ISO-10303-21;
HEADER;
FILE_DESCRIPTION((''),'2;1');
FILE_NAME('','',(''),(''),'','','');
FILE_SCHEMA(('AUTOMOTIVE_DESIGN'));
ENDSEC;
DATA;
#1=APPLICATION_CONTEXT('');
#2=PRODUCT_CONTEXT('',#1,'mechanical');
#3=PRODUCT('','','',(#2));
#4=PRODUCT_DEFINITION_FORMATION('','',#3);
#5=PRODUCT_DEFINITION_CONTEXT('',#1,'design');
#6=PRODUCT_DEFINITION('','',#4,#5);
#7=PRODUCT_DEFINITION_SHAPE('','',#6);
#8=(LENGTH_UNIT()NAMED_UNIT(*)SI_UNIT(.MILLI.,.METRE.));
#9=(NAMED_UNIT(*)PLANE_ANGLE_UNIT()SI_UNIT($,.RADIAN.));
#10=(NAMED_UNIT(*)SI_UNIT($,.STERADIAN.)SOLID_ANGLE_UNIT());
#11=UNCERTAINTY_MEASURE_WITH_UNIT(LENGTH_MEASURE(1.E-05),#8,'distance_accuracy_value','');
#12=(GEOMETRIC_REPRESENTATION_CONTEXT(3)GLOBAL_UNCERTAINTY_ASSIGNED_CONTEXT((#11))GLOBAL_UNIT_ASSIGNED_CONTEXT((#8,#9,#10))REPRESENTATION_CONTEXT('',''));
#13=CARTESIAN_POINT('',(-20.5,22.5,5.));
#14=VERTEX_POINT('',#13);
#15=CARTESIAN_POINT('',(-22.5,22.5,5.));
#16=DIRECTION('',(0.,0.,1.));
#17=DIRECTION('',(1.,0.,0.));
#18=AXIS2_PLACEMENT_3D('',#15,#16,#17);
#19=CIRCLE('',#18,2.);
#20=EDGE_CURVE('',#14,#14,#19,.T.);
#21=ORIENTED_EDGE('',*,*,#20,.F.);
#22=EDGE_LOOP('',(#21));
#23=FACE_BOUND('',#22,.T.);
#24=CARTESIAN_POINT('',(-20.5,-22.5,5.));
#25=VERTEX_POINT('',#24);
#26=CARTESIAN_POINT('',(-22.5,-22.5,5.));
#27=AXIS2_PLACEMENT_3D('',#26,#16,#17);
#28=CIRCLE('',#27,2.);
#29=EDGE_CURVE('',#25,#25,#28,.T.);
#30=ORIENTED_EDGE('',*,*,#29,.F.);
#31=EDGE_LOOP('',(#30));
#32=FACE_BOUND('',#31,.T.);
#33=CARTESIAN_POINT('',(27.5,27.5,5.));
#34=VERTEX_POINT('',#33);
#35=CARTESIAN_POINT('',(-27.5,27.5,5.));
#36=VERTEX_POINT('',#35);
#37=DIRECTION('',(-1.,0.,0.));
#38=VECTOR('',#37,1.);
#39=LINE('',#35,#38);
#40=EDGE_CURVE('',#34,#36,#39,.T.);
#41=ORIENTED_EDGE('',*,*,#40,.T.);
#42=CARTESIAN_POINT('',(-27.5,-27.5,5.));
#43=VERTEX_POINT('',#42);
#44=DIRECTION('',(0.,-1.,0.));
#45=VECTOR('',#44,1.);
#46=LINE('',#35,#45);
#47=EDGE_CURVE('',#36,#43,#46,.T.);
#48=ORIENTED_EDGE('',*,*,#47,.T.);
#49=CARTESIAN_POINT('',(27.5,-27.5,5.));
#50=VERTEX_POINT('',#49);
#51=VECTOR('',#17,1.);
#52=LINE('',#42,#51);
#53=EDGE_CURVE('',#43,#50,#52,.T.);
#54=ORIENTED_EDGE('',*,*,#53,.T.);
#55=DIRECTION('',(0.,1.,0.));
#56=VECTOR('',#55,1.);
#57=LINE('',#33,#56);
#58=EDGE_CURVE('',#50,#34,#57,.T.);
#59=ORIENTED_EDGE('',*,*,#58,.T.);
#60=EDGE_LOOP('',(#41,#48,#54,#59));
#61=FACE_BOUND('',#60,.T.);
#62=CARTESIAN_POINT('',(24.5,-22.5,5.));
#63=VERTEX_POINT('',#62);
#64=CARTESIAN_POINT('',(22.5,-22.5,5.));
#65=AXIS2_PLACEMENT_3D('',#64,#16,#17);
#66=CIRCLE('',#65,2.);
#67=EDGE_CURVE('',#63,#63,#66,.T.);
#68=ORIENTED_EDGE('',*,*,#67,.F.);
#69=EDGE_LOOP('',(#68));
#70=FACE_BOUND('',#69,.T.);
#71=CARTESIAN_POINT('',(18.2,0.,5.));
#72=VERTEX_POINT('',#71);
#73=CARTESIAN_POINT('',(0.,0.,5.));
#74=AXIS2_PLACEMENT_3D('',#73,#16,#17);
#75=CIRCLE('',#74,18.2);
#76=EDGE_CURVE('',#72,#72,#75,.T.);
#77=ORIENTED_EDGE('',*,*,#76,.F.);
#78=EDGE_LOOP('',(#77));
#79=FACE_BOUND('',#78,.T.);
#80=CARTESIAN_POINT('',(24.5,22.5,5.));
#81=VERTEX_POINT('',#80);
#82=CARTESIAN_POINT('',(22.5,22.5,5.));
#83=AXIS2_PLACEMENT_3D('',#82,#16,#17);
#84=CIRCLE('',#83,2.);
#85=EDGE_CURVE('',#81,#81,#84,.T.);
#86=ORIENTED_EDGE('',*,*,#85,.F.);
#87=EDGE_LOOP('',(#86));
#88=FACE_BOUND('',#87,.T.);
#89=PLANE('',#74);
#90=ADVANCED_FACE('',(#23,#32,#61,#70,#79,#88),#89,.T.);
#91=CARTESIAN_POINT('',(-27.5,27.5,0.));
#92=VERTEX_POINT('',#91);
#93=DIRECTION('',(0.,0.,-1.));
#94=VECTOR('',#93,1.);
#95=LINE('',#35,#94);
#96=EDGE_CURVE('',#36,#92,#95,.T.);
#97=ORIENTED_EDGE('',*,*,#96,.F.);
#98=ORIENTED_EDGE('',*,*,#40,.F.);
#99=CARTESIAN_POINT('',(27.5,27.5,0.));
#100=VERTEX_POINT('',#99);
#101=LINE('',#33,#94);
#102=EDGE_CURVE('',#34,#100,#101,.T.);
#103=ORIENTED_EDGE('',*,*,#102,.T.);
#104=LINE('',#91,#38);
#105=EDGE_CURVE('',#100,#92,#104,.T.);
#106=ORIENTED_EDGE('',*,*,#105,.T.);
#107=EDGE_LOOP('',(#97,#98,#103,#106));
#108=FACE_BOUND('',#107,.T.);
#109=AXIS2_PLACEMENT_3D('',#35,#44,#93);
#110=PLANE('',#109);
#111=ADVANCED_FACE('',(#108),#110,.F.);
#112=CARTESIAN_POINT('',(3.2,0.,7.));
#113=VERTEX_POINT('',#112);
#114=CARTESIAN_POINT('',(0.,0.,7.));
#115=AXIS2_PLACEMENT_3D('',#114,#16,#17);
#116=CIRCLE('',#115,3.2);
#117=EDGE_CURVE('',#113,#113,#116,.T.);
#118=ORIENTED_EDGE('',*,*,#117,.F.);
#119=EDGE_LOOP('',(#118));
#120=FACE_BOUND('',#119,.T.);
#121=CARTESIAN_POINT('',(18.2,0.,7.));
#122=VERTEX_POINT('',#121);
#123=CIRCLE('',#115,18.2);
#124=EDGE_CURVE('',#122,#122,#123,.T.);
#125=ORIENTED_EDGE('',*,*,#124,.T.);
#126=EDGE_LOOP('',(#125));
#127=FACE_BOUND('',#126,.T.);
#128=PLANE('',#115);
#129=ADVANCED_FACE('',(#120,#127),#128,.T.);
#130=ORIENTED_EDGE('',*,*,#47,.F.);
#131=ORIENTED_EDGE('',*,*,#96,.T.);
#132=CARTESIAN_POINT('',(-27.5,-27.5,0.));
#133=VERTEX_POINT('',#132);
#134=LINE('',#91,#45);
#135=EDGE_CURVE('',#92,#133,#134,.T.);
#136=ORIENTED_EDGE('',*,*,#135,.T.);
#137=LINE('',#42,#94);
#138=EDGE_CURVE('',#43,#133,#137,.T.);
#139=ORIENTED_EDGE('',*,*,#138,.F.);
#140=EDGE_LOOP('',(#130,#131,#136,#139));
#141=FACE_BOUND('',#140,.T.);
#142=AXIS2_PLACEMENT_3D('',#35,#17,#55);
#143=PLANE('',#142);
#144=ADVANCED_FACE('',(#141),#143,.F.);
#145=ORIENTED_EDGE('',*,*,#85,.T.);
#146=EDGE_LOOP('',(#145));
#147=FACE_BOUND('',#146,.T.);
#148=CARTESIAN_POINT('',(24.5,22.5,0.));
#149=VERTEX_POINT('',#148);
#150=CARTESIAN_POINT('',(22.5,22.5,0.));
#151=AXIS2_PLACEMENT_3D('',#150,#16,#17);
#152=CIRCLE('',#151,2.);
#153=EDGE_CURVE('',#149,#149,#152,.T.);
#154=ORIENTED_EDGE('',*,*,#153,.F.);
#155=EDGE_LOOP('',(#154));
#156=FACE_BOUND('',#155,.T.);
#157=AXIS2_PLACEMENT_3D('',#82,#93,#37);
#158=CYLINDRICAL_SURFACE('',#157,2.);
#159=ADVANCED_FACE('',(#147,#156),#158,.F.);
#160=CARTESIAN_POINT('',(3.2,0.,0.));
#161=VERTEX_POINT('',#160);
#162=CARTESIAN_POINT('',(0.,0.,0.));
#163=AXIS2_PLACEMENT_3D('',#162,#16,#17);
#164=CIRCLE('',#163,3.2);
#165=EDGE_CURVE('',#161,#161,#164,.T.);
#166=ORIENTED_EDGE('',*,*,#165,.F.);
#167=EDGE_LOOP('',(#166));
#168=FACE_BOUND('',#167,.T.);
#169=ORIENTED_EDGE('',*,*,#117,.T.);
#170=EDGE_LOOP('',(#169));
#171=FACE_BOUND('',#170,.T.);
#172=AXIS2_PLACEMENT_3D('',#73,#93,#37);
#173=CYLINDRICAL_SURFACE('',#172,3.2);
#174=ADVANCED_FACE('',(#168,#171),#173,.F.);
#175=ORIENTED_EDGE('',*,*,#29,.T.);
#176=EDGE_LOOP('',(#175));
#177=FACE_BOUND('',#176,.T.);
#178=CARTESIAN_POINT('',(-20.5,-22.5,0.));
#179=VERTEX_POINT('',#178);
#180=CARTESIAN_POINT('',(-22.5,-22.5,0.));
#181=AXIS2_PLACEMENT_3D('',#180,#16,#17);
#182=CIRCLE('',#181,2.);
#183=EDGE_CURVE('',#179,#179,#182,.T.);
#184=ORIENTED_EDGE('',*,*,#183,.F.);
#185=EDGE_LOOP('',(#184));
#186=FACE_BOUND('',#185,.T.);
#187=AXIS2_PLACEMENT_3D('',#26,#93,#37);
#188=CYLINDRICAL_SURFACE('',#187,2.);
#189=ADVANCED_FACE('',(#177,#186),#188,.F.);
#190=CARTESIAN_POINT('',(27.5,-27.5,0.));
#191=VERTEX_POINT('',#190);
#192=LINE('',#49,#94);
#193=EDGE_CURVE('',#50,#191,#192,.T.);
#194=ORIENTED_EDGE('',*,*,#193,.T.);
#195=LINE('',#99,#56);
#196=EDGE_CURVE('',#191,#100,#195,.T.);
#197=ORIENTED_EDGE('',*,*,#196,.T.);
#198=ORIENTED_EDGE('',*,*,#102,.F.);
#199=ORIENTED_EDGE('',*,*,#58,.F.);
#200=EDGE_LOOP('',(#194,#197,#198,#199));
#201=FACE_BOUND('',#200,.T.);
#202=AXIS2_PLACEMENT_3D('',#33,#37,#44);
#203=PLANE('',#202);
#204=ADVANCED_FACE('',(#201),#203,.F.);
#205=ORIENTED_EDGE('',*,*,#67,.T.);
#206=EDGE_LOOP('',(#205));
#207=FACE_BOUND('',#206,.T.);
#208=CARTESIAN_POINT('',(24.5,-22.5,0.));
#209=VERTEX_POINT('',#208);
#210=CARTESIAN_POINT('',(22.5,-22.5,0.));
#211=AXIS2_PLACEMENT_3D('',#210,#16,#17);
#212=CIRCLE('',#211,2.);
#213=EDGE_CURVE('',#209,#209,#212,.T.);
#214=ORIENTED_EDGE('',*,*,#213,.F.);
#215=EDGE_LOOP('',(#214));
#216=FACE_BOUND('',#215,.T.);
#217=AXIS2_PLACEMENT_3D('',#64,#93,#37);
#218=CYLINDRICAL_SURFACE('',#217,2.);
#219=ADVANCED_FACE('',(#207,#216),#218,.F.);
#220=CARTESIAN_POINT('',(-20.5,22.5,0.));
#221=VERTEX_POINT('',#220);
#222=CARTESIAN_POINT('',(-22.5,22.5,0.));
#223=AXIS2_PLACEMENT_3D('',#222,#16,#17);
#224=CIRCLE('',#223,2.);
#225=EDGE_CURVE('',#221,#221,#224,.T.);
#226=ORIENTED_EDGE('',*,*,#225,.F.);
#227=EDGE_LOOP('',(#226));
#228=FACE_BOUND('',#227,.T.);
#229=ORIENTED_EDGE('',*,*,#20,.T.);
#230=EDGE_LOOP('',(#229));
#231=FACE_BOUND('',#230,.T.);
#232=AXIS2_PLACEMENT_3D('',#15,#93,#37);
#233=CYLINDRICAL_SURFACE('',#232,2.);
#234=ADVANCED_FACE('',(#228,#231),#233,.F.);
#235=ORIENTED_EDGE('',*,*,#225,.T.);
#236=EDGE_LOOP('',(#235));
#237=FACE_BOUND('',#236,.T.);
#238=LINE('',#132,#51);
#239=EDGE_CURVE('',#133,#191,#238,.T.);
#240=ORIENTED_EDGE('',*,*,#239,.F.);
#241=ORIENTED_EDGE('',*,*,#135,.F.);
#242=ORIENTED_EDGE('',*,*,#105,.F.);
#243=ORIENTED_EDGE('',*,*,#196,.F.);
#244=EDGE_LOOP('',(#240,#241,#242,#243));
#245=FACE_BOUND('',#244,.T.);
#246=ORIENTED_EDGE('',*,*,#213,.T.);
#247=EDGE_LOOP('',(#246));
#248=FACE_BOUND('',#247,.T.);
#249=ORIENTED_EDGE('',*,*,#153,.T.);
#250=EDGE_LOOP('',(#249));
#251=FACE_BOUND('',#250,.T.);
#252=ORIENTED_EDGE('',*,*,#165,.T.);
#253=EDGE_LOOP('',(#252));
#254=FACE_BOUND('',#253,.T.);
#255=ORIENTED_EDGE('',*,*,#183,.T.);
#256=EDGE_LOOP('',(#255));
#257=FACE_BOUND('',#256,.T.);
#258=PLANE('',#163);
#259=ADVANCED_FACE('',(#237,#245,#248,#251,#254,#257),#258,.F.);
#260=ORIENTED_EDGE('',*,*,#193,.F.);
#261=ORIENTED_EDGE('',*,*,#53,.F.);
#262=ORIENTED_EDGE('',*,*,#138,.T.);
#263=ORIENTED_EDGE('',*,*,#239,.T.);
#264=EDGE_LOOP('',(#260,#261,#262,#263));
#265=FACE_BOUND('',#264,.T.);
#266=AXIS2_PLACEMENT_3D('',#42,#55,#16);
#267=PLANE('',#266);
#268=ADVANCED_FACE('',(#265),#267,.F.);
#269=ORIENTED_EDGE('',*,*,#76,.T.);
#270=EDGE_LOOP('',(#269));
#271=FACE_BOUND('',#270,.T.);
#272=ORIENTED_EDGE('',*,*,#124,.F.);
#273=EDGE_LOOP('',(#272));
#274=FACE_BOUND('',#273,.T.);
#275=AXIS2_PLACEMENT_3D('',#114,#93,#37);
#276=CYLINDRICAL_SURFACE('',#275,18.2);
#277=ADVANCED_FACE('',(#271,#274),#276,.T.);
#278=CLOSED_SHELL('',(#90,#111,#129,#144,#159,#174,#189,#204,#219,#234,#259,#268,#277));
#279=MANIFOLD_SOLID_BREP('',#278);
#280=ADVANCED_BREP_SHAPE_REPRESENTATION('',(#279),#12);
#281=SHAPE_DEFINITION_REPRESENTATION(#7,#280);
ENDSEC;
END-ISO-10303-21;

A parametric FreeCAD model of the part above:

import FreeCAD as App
import Part
import Sketcher

V = App.Vector


def add_polygon(sketch, points):
    """Adds a closed chain of lines whose ends are joined by coincident constraints."""
    first, n = sketch.GeometryCount, len(points)
    for a, b in zip(points, points[1:] + points[:1]):
        sketch.addGeometry(Part.LineSegment(App.Vector(*a, 0), App.Vector(*b, 0)), False)
    for i in range(n):
        sketch.addConstraint(Sketcher.Constraint("Coincident", first + i, 2, first + (i + 1) % n, 1))

doc = App.newDocument("Part")
body = doc.addObject("PartDesign::Body", "Body")

# Sketch on XY plane
sketch1 = body.newObject("Sketcher::SketchObject", "Sketch")
sketch1.AttachmentSupport = (doc.getObject("XY_Plane"), [""])
sketch1.MapMode = "FlatFace"
add_polygon(sketch1, [(-27.5, 27.5), (-27.5, -27.5), (27.5, -27.5), (27.5, 27.5)])  # lines 0-3
sketch1.addGeometry(Part.Circle(V(-22.5, -22.5, 0), V(0, 0, 1), 2), False)  # 4
sketch1.addGeometry(Part.Circle(V(0, 0, 0), V(0, 0, 1), 3.2), False)  # 5
sketch1.addGeometry(Part.Circle(V(22.5, -22.5, 0), V(0, 0, 1), 2), False)  # 6
sketch1.addGeometry(Part.Circle(V(-22.5, 22.5, 0), V(0, 0, 1), 2), False)  # 7
sketch1.addGeometry(Part.Circle(V(22.5, 22.5, 0), V(0, 0, 1), 2), False)  # 8
sketch1.addConstraint(Sketcher.Constraint("Vertical", 0))
sketch1.addConstraint(Sketcher.Constraint("Horizontal", 1))
sketch1.addConstraint(Sketcher.Constraint("Vertical", 2))
sketch1.addConstraint(Sketcher.Constraint("Horizontal", 3))
sketch1.addConstraint(Sketcher.Constraint("Coincident", 5, 3, -1, 1))
sketch1.addConstraint(Sketcher.Constraint("Equal", 4, 6))
sketch1.addConstraint(Sketcher.Constraint("Equal", 6, 7))
sketch1.addConstraint(Sketcher.Constraint("Equal", 7, 8))
sketch1.addConstraint(Sketcher.Constraint("Symmetric", 6, 3, 7, 3, -1, 1))
sketch1.addConstraint(Sketcher.Constraint("Symmetric", 4, 3, 8, 3, -1, 1))
sketch1.addConstraint(Sketcher.Constraint("Symmetric", 0, 2, 2, 2, -1, 1))
sketch1.addConstraint(Sketcher.Constraint("Symmetric", 4, 3, 6, 3, -2))
sketch1.addConstraint(Sketcher.Constraint("Equal", 3, 0))
sketch1.addConstraint(Sketcher.Constraint("Diameter", 4, 4.0))
sketch1.addConstraint(Sketcher.Constraint("Diameter", 5, 6.4))
sketch1.addConstraint(Sketcher.Constraint("DistanceX", 1, 1, 1, 2, 55.0))
sketch1.addConstraint(Sketcher.Constraint("DistanceX", 4, 3, 6, 3, 45.0))
sketch1.addConstraint(Sketcher.Constraint("DistanceY", 4, 3, 7, 3, 45.0))
pad1 = body.newObject("PartDesign::Pad", "Pad")
pad1.Profile = sketch1
pad1.Length = 5

# Sketch on XY plane
sketch2 = body.newObject("Sketcher::SketchObject", "Sketch001")
sketch2.AttachmentSupport = (doc.getObject("XY_Plane"), [""])
sketch2.MapMode = "FlatFace"
sketch2.AttachmentOffset = App.Placement(V(0, 0, 5), App.Rotation())
sketch2.addGeometry(Part.Circle(V(0, 0, 0), V(0, 0, 1), 18.2), False)
sketch2.addGeometry(Part.Circle(V(0, 0, 0), V(0, 0, 1), 3.2), False)
sketch2.addConstraint(Sketcher.Constraint("Coincident", 0, 3, -1, 1))
sketch2.addConstraint(Sketcher.Constraint("Coincident", 1, 3, -1, 1))
sketch2.addConstraint(Sketcher.Constraint("Diameter", 0, 36.4))
sketch2.addConstraint(Sketcher.Constraint("Diameter", 1, 6.4))
pad2 = body.newObject("PartDesign::Pad", "Pad001")
pad2.Profile = sketch2
pad2.Length = 2

doc.recompute()
